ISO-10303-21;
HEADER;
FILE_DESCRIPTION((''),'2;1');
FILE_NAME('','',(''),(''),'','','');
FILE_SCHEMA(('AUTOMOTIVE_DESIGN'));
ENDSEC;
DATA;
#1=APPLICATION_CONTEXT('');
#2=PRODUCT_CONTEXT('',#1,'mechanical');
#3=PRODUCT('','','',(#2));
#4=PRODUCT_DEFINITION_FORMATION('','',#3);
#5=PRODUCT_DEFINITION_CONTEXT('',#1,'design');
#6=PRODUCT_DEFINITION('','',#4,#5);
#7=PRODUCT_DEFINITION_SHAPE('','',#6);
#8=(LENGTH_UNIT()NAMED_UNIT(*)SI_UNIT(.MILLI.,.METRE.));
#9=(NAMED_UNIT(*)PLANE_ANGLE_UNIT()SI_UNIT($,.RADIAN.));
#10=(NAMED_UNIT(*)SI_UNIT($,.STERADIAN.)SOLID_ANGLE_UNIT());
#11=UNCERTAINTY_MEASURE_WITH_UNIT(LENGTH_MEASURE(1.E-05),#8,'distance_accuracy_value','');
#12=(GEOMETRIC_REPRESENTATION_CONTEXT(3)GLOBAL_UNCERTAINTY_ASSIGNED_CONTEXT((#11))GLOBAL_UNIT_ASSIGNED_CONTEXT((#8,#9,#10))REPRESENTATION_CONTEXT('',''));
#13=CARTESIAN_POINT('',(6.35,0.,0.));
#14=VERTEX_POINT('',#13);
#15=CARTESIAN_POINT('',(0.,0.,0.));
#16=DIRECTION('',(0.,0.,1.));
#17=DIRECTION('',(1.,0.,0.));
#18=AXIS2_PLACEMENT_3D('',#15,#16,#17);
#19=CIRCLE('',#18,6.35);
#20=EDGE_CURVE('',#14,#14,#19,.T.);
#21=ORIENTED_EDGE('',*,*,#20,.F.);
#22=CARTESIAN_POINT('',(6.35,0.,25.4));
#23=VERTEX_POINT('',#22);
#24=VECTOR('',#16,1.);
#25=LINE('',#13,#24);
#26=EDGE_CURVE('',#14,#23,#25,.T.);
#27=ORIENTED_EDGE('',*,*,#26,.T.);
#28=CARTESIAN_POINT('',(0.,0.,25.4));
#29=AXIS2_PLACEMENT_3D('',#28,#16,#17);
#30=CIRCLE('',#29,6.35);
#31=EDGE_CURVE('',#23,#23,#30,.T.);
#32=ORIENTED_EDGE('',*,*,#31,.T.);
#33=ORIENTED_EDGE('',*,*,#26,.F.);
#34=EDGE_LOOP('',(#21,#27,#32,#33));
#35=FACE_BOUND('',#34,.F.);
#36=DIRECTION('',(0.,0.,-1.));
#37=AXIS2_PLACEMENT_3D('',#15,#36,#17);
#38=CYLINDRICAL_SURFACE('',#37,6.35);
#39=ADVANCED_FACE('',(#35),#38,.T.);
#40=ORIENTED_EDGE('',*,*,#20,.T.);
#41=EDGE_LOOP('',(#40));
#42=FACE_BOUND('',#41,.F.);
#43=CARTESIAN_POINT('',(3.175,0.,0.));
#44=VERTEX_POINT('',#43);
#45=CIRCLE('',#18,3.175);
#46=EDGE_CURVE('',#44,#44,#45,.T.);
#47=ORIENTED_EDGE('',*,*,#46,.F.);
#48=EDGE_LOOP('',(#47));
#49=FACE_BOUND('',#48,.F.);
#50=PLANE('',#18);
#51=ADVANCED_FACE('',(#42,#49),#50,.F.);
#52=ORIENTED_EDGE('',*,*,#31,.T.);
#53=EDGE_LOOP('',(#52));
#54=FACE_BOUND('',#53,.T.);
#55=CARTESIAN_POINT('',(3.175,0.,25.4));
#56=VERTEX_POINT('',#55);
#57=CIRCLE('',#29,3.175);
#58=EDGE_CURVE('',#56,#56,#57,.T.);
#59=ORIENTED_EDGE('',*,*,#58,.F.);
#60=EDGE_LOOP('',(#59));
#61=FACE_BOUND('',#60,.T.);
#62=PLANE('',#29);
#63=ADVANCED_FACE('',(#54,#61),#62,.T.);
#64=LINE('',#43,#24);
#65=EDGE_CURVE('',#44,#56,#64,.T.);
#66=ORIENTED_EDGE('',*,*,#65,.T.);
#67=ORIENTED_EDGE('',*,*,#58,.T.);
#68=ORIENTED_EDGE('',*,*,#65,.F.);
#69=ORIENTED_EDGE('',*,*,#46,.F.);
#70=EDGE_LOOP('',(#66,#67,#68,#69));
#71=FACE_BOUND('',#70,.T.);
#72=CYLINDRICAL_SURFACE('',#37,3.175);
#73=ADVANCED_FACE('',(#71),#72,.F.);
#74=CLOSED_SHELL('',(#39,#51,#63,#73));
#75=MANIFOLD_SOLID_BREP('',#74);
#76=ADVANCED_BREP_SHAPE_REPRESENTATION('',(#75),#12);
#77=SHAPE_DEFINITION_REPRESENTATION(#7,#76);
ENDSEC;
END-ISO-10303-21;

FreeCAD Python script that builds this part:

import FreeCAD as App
import Part
import Sketcher
Q = App.Units.Quantity

doc = App.newDocument("Part")
body = doc.addObject("PartDesign::Body", "Body")

# Sketch on XY plane
sketch1 = body.newObject("Sketcher::SketchObject", "Sketch")
sketch1.AttachmentSupport = (doc.getObject("XY_Plane"), [""])
sketch1.MapMode = "FlatFace"
sketch1.addGeometry(Part.Circle(App.Vector(0, 0, 0), App.Vector(0, 0, 1), 6.35), False)
sketch1.addGeometry(Part.Circle(App.Vector(0, 0, 0), App.Vector(0, 0, 1), 3.175), False)
sketch1.addConstraint(Sketcher.Constraint("Coincident", 0, 3, -1, 1))
sketch1.addConstraint(Sketcher.Constraint("Coincident", 1, 3, -1, 1))
sketch1.addConstraint(Sketcher.Constraint("Diameter", 0, Q("0.5 in")))
sketch1.addConstraint(Sketcher.Constraint("Diameter", 1, Q("0.25 in")))
pad1 = body.newObject("PartDesign::Pad", "Pad")
pad1.Profile = sketch1
pad1.Length = Q("1 in")

doc.recompute()
